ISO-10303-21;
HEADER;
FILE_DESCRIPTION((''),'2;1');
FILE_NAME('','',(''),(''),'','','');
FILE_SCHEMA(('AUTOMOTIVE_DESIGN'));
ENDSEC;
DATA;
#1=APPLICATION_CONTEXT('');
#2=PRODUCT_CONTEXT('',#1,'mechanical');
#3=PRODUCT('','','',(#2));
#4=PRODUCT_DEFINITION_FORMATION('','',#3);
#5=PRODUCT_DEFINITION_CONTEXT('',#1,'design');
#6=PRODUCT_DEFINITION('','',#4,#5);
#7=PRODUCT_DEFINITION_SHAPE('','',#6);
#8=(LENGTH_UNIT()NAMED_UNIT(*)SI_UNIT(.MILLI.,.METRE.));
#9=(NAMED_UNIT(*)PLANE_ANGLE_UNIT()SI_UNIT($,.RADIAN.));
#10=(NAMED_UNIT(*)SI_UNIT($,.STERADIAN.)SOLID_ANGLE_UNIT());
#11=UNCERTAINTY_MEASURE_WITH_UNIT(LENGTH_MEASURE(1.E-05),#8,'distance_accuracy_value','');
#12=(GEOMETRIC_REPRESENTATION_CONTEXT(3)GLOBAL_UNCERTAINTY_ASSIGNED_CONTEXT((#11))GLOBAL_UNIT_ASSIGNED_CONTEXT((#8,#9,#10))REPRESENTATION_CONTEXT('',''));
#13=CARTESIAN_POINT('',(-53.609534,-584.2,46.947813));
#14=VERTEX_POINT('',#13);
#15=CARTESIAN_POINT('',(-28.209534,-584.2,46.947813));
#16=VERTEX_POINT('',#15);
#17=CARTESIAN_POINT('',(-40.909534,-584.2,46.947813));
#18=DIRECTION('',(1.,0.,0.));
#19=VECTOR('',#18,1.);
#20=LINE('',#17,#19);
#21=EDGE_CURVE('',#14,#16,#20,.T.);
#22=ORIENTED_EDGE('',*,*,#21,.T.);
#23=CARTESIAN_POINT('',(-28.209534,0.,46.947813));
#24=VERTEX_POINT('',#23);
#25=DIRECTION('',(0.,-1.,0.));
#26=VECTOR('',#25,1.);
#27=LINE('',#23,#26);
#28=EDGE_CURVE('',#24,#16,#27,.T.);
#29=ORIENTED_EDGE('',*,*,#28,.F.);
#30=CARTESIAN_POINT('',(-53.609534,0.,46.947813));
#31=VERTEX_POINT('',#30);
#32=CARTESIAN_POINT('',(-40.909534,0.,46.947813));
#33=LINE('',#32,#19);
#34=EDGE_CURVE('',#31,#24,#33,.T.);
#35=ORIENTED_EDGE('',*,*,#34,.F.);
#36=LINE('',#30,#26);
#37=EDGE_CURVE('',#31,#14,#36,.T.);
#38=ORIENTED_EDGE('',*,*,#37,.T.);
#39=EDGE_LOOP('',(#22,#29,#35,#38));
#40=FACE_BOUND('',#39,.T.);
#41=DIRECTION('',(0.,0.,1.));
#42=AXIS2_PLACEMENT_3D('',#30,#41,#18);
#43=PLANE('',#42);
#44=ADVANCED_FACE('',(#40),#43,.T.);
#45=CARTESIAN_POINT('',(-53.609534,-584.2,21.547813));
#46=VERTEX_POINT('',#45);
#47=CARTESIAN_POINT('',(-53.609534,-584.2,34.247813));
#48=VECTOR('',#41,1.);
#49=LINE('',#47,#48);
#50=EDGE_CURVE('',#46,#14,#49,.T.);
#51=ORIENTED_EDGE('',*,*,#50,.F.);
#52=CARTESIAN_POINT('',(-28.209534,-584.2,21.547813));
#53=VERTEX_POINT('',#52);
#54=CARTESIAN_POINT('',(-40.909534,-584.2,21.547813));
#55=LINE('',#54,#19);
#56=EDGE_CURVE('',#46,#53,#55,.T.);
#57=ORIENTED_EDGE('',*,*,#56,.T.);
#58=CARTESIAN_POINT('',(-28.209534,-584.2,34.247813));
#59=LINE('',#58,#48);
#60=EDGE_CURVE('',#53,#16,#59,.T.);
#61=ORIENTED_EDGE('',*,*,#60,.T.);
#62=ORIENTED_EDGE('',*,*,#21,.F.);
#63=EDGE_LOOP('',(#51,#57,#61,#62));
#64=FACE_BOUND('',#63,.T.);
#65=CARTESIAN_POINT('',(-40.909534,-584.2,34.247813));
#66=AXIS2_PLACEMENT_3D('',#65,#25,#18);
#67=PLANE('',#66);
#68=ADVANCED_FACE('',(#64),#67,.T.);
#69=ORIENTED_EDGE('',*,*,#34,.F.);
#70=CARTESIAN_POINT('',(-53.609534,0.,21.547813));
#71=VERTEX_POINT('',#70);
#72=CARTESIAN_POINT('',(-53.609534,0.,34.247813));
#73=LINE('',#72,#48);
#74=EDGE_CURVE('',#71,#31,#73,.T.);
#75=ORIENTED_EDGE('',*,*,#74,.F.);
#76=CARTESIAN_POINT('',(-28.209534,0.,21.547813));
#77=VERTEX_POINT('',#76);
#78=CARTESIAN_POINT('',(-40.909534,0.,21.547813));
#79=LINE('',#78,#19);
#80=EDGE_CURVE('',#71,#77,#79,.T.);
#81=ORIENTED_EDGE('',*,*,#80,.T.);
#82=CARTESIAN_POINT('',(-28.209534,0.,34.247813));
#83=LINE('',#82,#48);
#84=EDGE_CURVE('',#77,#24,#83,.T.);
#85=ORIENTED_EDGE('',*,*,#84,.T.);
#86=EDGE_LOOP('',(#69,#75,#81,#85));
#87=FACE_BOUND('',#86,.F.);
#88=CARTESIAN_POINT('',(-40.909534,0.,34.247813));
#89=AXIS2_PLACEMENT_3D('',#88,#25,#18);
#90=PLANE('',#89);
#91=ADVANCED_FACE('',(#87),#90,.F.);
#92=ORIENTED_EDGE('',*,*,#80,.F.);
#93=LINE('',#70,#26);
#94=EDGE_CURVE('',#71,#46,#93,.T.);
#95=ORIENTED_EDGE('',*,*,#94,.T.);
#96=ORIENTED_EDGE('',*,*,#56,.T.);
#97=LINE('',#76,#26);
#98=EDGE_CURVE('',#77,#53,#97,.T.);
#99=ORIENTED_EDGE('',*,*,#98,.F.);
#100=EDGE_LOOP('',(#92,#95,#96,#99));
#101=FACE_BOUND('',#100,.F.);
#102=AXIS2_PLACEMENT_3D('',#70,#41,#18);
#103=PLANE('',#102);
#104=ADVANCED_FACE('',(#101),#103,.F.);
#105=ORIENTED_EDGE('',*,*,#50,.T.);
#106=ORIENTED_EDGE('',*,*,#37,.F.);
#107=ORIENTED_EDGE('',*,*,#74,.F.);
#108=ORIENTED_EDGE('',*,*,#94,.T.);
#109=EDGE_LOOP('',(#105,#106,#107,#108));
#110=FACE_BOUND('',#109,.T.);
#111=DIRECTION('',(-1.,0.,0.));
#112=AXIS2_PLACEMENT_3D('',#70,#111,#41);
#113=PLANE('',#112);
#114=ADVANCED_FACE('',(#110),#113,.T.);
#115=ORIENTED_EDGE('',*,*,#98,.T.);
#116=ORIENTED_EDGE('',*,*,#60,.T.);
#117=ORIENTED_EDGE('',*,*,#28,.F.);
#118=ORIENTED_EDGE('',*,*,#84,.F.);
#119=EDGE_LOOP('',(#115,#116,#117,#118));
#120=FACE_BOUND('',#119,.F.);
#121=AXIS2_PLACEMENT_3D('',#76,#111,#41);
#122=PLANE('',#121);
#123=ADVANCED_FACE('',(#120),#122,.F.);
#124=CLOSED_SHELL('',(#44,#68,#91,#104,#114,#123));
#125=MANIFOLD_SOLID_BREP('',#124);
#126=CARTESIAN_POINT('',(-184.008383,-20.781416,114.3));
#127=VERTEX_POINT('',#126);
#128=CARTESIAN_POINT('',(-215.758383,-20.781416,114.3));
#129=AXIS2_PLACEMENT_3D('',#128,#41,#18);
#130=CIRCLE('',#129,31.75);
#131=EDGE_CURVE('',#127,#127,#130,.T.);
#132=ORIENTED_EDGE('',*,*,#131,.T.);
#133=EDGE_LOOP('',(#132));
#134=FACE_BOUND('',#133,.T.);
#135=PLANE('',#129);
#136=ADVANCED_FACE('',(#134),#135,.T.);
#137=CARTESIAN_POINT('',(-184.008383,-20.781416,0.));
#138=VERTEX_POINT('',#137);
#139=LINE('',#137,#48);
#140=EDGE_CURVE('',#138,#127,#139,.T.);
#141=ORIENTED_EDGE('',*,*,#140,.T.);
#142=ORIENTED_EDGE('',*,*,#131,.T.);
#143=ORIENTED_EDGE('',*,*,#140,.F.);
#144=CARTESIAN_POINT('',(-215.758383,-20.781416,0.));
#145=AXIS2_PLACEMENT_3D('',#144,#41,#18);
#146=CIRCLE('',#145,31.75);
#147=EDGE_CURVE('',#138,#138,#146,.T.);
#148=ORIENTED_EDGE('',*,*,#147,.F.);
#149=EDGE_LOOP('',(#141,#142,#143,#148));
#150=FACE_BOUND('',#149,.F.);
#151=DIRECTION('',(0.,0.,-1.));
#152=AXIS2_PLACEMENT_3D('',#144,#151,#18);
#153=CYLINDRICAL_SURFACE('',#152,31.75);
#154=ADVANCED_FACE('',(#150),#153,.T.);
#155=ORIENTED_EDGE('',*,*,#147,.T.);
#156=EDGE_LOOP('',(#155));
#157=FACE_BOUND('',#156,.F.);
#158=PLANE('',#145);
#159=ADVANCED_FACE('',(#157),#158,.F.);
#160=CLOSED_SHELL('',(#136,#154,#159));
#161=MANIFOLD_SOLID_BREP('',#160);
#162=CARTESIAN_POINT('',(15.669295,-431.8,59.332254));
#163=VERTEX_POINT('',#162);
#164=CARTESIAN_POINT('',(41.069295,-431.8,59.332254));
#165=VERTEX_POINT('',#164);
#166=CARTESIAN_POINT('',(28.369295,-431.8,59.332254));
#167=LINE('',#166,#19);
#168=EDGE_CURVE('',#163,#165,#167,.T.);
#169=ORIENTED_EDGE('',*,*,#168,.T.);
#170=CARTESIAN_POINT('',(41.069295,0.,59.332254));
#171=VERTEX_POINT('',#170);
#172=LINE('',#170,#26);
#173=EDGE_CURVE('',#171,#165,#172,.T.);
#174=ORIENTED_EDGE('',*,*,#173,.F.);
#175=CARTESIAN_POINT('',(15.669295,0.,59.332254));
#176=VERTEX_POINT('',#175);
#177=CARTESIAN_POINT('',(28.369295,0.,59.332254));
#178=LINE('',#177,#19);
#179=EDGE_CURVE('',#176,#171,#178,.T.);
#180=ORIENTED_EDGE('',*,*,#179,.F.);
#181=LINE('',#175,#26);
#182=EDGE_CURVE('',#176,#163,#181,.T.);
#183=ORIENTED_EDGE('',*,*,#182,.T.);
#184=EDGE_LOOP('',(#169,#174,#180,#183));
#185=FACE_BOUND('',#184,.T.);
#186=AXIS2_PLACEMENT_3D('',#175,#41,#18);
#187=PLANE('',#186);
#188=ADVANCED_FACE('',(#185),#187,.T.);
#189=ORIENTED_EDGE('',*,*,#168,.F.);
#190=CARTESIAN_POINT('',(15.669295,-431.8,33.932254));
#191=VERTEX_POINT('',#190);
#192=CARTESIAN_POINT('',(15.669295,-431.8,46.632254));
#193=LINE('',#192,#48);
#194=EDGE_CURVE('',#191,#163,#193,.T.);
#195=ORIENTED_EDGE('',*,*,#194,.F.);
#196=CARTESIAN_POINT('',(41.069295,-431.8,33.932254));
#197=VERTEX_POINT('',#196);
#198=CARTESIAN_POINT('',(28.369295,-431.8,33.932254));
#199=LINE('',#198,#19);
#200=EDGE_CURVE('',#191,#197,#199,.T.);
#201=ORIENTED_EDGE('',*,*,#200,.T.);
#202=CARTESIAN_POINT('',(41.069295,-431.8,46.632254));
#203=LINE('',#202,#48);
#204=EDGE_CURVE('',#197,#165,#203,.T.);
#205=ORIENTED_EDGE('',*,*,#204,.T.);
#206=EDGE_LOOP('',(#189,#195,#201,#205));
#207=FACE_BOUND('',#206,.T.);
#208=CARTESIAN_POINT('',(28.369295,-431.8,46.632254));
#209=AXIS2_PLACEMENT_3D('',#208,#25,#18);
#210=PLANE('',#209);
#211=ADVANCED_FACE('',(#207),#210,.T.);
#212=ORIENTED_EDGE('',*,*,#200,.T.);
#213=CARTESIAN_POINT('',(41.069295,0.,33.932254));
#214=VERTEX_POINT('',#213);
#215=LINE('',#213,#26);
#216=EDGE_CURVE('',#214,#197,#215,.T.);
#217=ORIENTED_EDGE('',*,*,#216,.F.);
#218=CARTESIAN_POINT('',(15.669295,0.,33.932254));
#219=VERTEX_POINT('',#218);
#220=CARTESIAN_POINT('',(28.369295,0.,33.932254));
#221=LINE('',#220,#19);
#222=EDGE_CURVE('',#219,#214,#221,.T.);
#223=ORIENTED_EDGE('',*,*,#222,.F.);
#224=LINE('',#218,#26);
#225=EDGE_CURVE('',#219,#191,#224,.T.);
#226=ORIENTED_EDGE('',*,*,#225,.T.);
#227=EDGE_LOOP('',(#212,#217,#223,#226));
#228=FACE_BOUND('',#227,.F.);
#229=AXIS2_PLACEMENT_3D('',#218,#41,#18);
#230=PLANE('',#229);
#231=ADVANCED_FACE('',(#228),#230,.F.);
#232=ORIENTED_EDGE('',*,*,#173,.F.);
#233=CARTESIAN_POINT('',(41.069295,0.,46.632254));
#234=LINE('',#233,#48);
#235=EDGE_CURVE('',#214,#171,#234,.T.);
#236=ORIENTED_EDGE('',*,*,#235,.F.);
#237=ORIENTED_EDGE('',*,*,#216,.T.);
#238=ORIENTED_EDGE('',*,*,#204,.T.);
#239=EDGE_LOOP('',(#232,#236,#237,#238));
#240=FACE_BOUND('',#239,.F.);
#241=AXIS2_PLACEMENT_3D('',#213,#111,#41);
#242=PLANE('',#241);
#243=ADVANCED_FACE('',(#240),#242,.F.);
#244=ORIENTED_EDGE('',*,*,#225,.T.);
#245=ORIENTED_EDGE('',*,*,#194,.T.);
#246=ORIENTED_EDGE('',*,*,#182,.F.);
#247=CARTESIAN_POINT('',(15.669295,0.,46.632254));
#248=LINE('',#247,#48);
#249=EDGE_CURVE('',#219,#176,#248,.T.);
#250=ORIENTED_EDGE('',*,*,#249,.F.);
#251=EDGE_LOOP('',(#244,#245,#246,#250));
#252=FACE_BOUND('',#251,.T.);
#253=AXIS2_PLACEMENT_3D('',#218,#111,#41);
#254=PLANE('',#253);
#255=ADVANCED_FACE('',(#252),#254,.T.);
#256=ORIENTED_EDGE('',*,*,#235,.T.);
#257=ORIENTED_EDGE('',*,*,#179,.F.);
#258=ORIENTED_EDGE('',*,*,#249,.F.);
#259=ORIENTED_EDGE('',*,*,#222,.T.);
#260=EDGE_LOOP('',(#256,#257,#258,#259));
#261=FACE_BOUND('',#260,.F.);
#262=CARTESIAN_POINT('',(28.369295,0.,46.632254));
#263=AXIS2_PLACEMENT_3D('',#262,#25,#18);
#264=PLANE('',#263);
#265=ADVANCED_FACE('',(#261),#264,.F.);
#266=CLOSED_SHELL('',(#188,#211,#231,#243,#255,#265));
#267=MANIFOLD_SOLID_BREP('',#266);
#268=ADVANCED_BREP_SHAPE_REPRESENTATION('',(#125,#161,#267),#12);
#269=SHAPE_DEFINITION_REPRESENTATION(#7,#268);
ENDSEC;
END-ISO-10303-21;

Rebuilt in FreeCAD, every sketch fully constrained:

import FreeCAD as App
import Part
import Sketcher
from FreeCAD import Vector
Q = App.Units.Quantity

doc = App.newDocument("Part")
body = doc.addObject("PartDesign::Body", "Body")

# Sketch on XZ plane
sketch1 = body.newObject("Sketcher::SketchObject", "Sketch")
sketch1.AttachmentSupport = (doc.getObject("XZ_Plane"), [""])
sketch1.MapMode = "FlatFace"
sketch1.addGeometry(Part.LineSegment(Vector(-53.609534, 46.947813, 0), Vector(-53.609534, 21.547813, 0)), False)
sketch1.addGeometry(Part.LineSegment(Vector(-53.609534, 21.547813, 0), Vector(-28.209534, 21.547813, 0)), False)
sketch1.addGeometry(Part.LineSegment(Vector(-28.209534, 21.547813, 0), Vector(-28.209534, 46.947813, 0)), False)
sketch1.addGeometry(Part.LineSegment(Vector(-28.209534, 46.947813, 0), Vector(-53.609534, 46.947813, 0)), False)
sketch1.addConstraint(Sketcher.Constraint("Coincident", 0, 2, 1, 1))
sketch1.addConstraint(Sketcher.Constraint("Coincident", 1, 2, 2, 1))
sketch1.addConstraint(Sketcher.Constraint("Coincident", 2, 2, 3, 1))
sketch1.addConstraint(Sketcher.Constraint("Coincident", 3, 2, 0, 1))
sketch1.addConstraint(Sketcher.Constraint("Vertical", 0))
sketch1.addConstraint(Sketcher.Constraint("Horizontal", 1))
sketch1.addConstraint(Sketcher.Constraint("Vertical", 2))
sketch1.addConstraint(Sketcher.Constraint("Horizontal", 3))
sketch1.addConstraint(Sketcher.Constraint("Equal", 3, 0))
sketch1.addConstraint(Sketcher.Constraint("DistanceX", 1, 1, 1, 2, Q("1 in")))
sketch1.addConstraint(Sketcher.Constraint("DistanceX", 0, 2, -1, 1, 53.609534))
sketch1.addConstraint(Sketcher.Constraint("DistanceY", -1, 1, 0, 2, 21.547813))
pad1 = body.newObject("PartDesign::Pad", "Pad")
pad1.Profile = sketch1
pad1.Length = Q("23 in")
body2 = doc.addObject("PartDesign::Body", "Body001")

# Sketch on XZ plane
sketch2 = body2.newObject("Sketcher::SketchObject", "Sketch001")
sketch2.AttachmentSupport = (doc.getObject("XZ_Plane001"), [""])
sketch2.MapMode = "FlatFace"
sketch2.addGeometry(Part.LineSegment(Vector(15.669295, 59.332254, 0), Vector(15.669295, 33.932254, 0)), False)
sketch2.addGeometry(Part.LineSegment(Vector(15.669295, 33.932254, 0), Vector(41.069295, 33.932254, 0)), False)
sketch2.addGeometry(Part.LineSegment(Vector(41.069295, 33.932254, 0), Vector(41.069295, 59.332254, 0)), False)
sketch2.addGeometry(Part.LineSegment(Vector(41.069295, 59.332254, 0), Vector(15.669295, 59.332254, 0)), False)
sketch2.addConstraint(Sketcher.Constraint("Coincident", 0, 2, 1, 1))
sketch2.addConstraint(Sketcher.Constraint("Coincident", 1, 2, 2, 1))
sketch2.addConstraint(Sketcher.Constraint("Coincident", 2, 2, 3, 1))
sketch2.addConstraint(Sketcher.Constraint("Coincident", 3, 2, 0, 1))
sketch2.addConstraint(Sketcher.Constraint("Vertical", 0))
sketch2.addConstraint(Sketcher.Constraint("Horizontal", 1))
sketch2.addConstraint(Sketcher.Constraint("Vertical", 2))
sketch2.addConstraint(Sketcher.Constraint("Horizontal", 3))
sketch2.addConstraint(Sketcher.Constraint("Equal", 3, 0))
sketch2.addConstraint(Sketcher.Constraint("DistanceX", 1, 1, 1, 2, Q("1 in")))
sketch2.addConstraint(Sketcher.Constraint("DistanceX", -1, 1, 0, 2, 15.669295))
sketch2.addConstraint(Sketcher.Constraint("DistanceY", -1, 1, 0, 2, 33.932254))
pad2 = body2.newObject("PartDesign::Pad", "Pad001")
pad2.Profile = sketch2
pad2.Length = Q("17 in")
body3 = doc.addObject("PartDesign::Body", "Body002")

# Sketch on XY plane
sketch3 = body3.newObject("Sketcher::SketchObject", "Sketch002")
sketch3.AttachmentSupport = (doc.getObject("XY_Plane002"), [""])
sketch3.MapMode = "FlatFace"
sketch3.addGeometry(Part.Circle(Vector(-215.758383, -20.781416, 0), Vector(0, 0, 1), 31.75), False)
sketch3.addConstraint(Sketcher.Constraint("Diameter", 0, Q("2.5 in")))
sketch3.addConstraint(Sketcher.Constraint("DistanceX", 0, 3, -1, 1, 215.758383))
sketch3.addConstraint(Sketcher.Constraint("DistanceY", 0, 3, -1, 1, 20.781416))
pad3 = body3.newObject("PartDesign::Pad", "Pad002")
pad3.Profile = sketch3
pad3.Length = Q("4.5 in")

doc.recompute()
